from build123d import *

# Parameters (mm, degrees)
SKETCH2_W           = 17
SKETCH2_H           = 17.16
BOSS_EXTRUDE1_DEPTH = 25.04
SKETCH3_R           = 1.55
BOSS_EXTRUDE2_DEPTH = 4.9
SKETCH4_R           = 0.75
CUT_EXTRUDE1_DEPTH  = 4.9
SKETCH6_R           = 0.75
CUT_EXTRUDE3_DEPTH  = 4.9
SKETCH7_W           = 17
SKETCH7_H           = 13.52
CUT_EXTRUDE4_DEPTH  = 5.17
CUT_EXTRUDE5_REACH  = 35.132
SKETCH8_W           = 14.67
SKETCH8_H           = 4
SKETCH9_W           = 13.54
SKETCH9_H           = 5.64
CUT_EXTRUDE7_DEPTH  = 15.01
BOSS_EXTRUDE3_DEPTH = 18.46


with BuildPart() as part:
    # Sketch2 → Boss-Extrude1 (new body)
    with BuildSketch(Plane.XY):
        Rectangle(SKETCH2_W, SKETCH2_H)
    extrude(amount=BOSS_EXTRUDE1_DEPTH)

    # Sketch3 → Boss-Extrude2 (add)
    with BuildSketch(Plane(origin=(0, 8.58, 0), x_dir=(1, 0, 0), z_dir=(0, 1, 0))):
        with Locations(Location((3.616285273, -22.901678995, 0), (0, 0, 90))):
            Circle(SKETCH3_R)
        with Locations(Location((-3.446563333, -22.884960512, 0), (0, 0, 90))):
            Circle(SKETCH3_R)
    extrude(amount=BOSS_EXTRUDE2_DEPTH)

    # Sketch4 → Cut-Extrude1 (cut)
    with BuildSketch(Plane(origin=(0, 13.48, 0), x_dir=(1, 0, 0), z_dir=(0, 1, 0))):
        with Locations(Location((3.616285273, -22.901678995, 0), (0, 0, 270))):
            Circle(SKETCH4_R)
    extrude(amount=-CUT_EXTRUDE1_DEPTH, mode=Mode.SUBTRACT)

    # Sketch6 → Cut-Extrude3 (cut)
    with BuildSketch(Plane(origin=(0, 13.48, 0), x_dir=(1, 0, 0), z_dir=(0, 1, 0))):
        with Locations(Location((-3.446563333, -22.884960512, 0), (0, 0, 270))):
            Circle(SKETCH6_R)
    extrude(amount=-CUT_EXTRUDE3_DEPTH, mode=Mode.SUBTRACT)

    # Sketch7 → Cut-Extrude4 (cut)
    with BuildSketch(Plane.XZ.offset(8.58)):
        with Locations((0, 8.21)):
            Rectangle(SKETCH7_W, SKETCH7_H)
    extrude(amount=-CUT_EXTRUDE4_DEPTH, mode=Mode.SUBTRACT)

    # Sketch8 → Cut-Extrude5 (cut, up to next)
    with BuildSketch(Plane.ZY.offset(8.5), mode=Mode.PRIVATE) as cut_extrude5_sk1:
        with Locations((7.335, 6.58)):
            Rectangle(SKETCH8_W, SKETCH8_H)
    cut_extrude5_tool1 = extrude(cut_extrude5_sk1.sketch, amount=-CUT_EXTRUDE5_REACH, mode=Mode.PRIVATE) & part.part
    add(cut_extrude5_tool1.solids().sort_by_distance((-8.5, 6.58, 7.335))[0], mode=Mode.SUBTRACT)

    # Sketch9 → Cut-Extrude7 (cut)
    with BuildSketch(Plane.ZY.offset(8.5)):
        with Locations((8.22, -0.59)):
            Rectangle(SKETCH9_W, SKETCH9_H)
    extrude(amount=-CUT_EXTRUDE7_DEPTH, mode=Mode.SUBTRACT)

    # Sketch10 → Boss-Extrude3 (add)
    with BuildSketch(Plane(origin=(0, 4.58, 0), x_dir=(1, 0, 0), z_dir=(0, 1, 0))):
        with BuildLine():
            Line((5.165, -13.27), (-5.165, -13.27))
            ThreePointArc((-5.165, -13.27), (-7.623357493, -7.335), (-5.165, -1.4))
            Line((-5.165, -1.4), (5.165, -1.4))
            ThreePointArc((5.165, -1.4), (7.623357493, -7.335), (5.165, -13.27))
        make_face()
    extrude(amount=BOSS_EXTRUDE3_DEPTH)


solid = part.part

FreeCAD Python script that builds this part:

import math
import FreeCAD as App
import Part
import Sketcher

V = App.Vector
Q = App.Units.Quantity

doc = App.newDocument("Part")
body = doc.addObject("PartDesign::Body", "Body")

# Sketch on XY plane
sketch1 = body.newObject("Sketcher::SketchObject", "Sketch")
sketch1.AttachmentSupport = (doc.getObject("XY_Plane"), [""])
sketch1.MapMode = "FlatFace"
sketch1.addGeometry([
    Part.LineSegment(V(-8, 9, 0), V(-8, -9, 0)),
    Part.LineSegment(V(-8, -9, 0), V(8, -9, 0)),
    Part.LineSegment(V(8, -9, 0), V(8, 9, 0)),
    Part.LineSegment(V(8, 9, 0), V(-8, 9, 0)),
], False)
sketch1.addConstraint([
    Sketcher.Constraint("Coincident", 0, 2, 1, 1),
    Sketcher.Constraint("Coincident", 1, 2, 2, 1),
    Sketcher.Constraint("Coincident", 2, 2, 3, 1),
    Sketcher.Constraint("Coincident", 3, 2, 0, 1),
    Sketcher.Constraint("Vertical", 0),
    Sketcher.Constraint("Horizontal", 1),
    Sketcher.Constraint("Vertical", 2),
    Sketcher.Constraint("Horizontal", 3),
    Sketcher.Constraint("Symmetric", 0, 2, 2, 2, -1, 1),
    Sketcher.Constraint("DistanceX", 1, 1, 1, 2, Q("17 mm")),
    Sketcher.Constraint("DistanceY", 0, 2, 0, 1, Q("17.16 mm")),
])
pad1 = body.newObject("PartDesign::Pad", "Pad")
pad1.Profile = sketch1
pad1.Length = 25.04

# Sketch on XZ plane
sketch2 = body.newObject("Sketcher::SketchObject", "Sketch001")
sketch2.AttachmentSupport = (doc.getObject("XZ_Plane"), [""])
sketch2.MapMode = "FlatFace"
sketch2.AttachmentOffset = App.Placement(V(0, 0, -8.58), App.Rotation())
sketch2.addGeometry([
    Part.Circle(V(3.6, 22.9, 0), V(0, 0, 1), 1.6),
    Part.Circle(V(-3.4, 22.9, 0), V(0, 0, 1), 1.6),
], False)
sketch2.addConstraint([
    Sketcher.Constraint("Equal", 0, 1),
    Sketcher.Constraint("Diameter", 0, Q("3.1 mm")),
    Sketcher.Constraint("DistanceY", -1, 1, 0, 3, Q("22.901679 mm")),
    Sketcher.Constraint("DistanceY", -1, 1, 1, 3, Q("22.884961 mm")),
    Sketcher.Constraint("DistanceX", 1, 3, 0, 3, Q("7.062849 mm")),
    Sketcher.Constraint("DistanceX", -1, 1, 0, 3, Q("3.616285 mm")),
])
pad2 = body.newObject("PartDesign::Pad", "Pad001")
pad2.Profile = sketch2
pad2.Length = 4.9
pad2.Reversed = True

# Sketch on XZ plane
sketch3 = body.newObject("Sketcher::SketchObject", "Sketch002")
sketch3.AttachmentSupport = (doc.getObject("XZ_Plane"), [""])
sketch3.MapMode = "FlatFace"
sketch3.AttachmentOffset = App.Placement(V(0, 0, -13.48), App.Rotation())
sketch3.addGeometry(Part.Circle(V(3.6, 22.9, 0), V(0, 0, 1), 0.8), False)
sketch3.addConstraint([
    Sketcher.Constraint("Diameter", 0, Q("1.5 mm")),
    Sketcher.Constraint("DistanceY", -1, 1, 0, 3, Q("22.901679 mm")),
    Sketcher.Constraint("DistanceX", -1, 1, 0, 3, Q("3.616285 mm")),
])
pocket1 = body.newObject("PartDesign::Pocket", "Pocket")
pocket1.Profile = sketch3
pocket1.Length = 4.9
pocket1.Reversed = True

# Sketch on XZ plane
sketch4 = body.newObject("Sketcher::SketchObject", "Sketch003")
sketch4.AttachmentSupport = (doc.getObject("XZ_Plane"), [""])
sketch4.MapMode = "FlatFace"
sketch4.AttachmentOffset = App.Placement(V(0, 0, -13.48), App.Rotation())
sketch4.addGeometry(Part.Circle(V(-3.4, 22.9, 0), V(0, 0, 1), 0.8), False)
sketch4.addConstraint([
    Sketcher.Constraint("Diameter", 0, Q("1.5 mm")),
    Sketcher.Constraint("DistanceY", -1, 1, 0, 3, Q("22.884961 mm")),
    Sketcher.Constraint("DistanceX", 0, 3, -1, 1, Q("3.446563 mm")),
])
pocket2 = body.newObject("PartDesign::Pocket", "Pocket001")
pocket2.Profile = sketch4
pocket2.Length = 4.9
pocket2.Reversed = True

# Sketch on XZ plane
sketch5 = body.newObject("Sketcher::SketchObject", "Sketch004")
sketch5.AttachmentSupport = (doc.getObject("XZ_Plane"), [""])
sketch5.MapMode = "FlatFace"
sketch5.AttachmentOffset = App.Placement(V(0, 0, 8.58), App.Rotation())
sketch5.addGeometry([
    Part.LineSegment(V(-8, 15, 0), V(-8, 1, 0)),
    Part.LineSegment(V(-8, 1, 0), V(8, 1, 0)),
    Part.LineSegment(V(8, 1, 0), V(8, 15, 0)),
    Part.LineSegment(V(8, 15, 0), V(-8, 15, 0)),
], False)
sketch5.addConstraint([
    Sketcher.Constraint("Coincident", 0, 2, 1, 1),
    Sketcher.Constraint("Coincident", 1, 2, 2, 1),
    Sketcher.Constraint("Coincident", 2, 2, 3, 1),
    Sketcher.Constraint("Coincident", 3, 2, 0, 1),
    Sketcher.Constraint("Vertical", 0),
    Sketcher.Constraint("Horizontal", 1),
    Sketcher.Constraint("Vertical", 2),
    Sketcher.Constraint("Horizontal", 3),
    Sketcher.Constraint("DistanceX", 1, 1, 1, 2, Q("17 mm")),
    Sketcher.Constraint("DistanceY", 0, 2, 0, 1, Q("13.52 mm")),
    Sketcher.Constraint("DistanceX", 0, 2, -1, 1, Q("8.5 mm")),
    Sketcher.Constraint("DistanceY", -1, 1, 0, 2, Q("1.45 mm")),
])
pocket3 = body.newObject("PartDesign::Pocket", "Pocket002")
pocket3.Profile = sketch5
pocket3.Length = 5.17

# Sketch on YZ plane
sketch6 = body.newObject("Sketcher::SketchObject", "Sketch005")
sketch6.AttachmentSupport = (doc.getObject("YZ_Plane"), [""])
sketch6.MapMode = "FlatFace"
sketch6.AttachmentOffset = App.Placement(V(0, 0, -8.5), App.Rotation())
sketch6.addGeometry([
    Part.LineSegment(V(8.6, 0, 0), V(4.6, 0, 0)),
    Part.LineSegment(V(4.6, 0, 0), V(4.6, 14.7, 0)),
    Part.LineSegment(V(4.6, 14.7, 0), V(8.6, 14.7, 0)),
    Part.LineSegment(V(8.6, 14.7, 0), V(8.6, 0, 0)),
], False)
sketch6.addConstraint([
    Sketcher.Constraint("Coincident", 0, 2, 1, 1),
    Sketcher.Constraint("Coincident", 1, 2, 2, 1),
    Sketcher.Constraint("Coincident", 2, 2, 3, 1),
    Sketcher.Constraint("Coincident", 3, 2, 0, 1),
    Sketcher.Constraint("Horizontal", 0),
    Sketcher.Constraint("Vertical", 1),
    Sketcher.Constraint("Horizontal", 2),
    Sketcher.Constraint("Vertical", 3),
    Sketcher.Constraint("PointOnObject", 0, 2, -1),
    Sketcher.Constraint("DistanceX", 0, 2, 0, 1, Q("4 mm")),
    Sketcher.Constraint("DistanceY", 1, 1, 1, 2, Q("14.67 mm")),
    Sketcher.Constraint("DistanceX", -1, 1, 0, 2, Q("4.58 mm")),
])
pocket4 = body.newObject("PartDesign::Pocket", "Pocket003")
pocket4.Profile = sketch6
pocket4.Type = "UpToFirst"
pocket4.Reversed = True

# Sketch on YZ plane
sketch7 = body.newObject("Sketcher::SketchObject", "Sketch006")
sketch7.AttachmentSupport = (doc.getObject("YZ_Plane"), [""])
sketch7.MapMode = "FlatFace"
sketch7.AttachmentOffset = App.Placement(V(0, 0, -8.5), App.Rotation())
sketch7.addGeometry([
    Part.LineSegment(V(2, 1, 0), V(-3, 1, 0)),
    Part.LineSegment(V(-3, 1, 0), V(-3, 15, 0)),
    Part.LineSegment(V(-3, 15, 0), V(2, 15, 0)),
    Part.LineSegment(V(2, 15, 0), V(2, 1, 0)),
], False)
sketch7.addConstraint([
    Sketcher.Constraint("Coincident", 0, 2, 1, 1),
    Sketcher.Constraint("Coincident", 1, 2, 2, 1),
    Sketcher.Constraint("Coincident", 2, 2, 3, 1),
    Sketcher.Constraint("Coincident", 3, 2, 0, 1),
    Sketcher.Constraint("Horizontal", 0),
    Sketcher.Constraint("Vertical", 1),
    Sketcher.Constraint("Horizontal", 2),
    Sketcher.Constraint("Vertical", 3),
    Sketcher.Constraint("DistanceX", 0, 2, 0, 1, Q("5.64 mm")),
    Sketcher.Constraint("DistanceY", 1, 1, 1, 2, Q("13.54 mm")),
    Sketcher.Constraint("DistanceX", 0, 2, -1, 1, Q("3.41 mm")),
    Sketcher.Constraint("DistanceY", -1, 1, 0, 2, Q("1.45 mm")),
])
pocket5 = body.newObject("PartDesign::Pocket", "Pocket004")
pocket5.Profile = sketch7
pocket5.Length = 15.01
pocket5.Reversed = True

# Sketch on XZ plane
sketch8 = body.newObject("Sketcher::SketchObject", "Sketch007")
sketch8.AttachmentSupport = (doc.getObject("XZ_Plane"), [""])
sketch8.MapMode = "FlatFace"
sketch8.AttachmentOffset = App.Placement(V(0, 0, -4.58), App.Rotation())
sketch8.addGeometry([
    Part.LineSegment(V(-5, 13, 0), V(5, 13, 0)),
    Part.ArcOfCircle(Part.Circle(V(-1, 7, 0), V(0, 0, 1), 8), math.radians(-45), math.radians(45)),
    Part.LineSegment(V(5, 1, 0), V(-5, 1, 0)),
    Part.ArcOfCircle(Part.Circle(V(1, 7, 0), V(0, 0, 1), 8), math.radians(135), math.radians(225)),
], False)
sketch8.addConstraint([
    Sketcher.Constraint("Coincident", 0, 2, 1, 2),
    Sketcher.Constraint("Coincident", 1, 1, 2, 1),
    Sketcher.Constraint("Coincident", 2, 2, 3, 2),
    Sketcher.Constraint("Coincident", 3, 1, 0, 1),
    Sketcher.Constraint("Horizontal", 0),
    Sketcher.Constraint("Horizontal", 2),
    Sketcher.Constraint("Equal", 1, 3),
    Sketcher.Constraint("Symmetric", 1, 3, 3, 3, -2),
    Sketcher.Constraint("Vertical", 0, 2, 1, 1),
    Sketcher.Constraint("DistanceX", 0, 1, 0, 2, Q("10.33 mm")),
    Sketcher.Constraint("DistanceY", -1, 1, 1, 1, Q("1.4 mm")),
    Sketcher.Constraint("DistanceX", 1, 3, -1, 1, Q("0.77 mm")),
    Sketcher.Constraint("DistanceY", -1, 1, 0, 2, Q("13.27 mm")),
])
pad3 = body.newObject("PartDesign::Pad", "Pad002")
pad3.Profile = sketch8
pad3.Length = 18.46
pad3.Reversed = True

doc.recompute()
